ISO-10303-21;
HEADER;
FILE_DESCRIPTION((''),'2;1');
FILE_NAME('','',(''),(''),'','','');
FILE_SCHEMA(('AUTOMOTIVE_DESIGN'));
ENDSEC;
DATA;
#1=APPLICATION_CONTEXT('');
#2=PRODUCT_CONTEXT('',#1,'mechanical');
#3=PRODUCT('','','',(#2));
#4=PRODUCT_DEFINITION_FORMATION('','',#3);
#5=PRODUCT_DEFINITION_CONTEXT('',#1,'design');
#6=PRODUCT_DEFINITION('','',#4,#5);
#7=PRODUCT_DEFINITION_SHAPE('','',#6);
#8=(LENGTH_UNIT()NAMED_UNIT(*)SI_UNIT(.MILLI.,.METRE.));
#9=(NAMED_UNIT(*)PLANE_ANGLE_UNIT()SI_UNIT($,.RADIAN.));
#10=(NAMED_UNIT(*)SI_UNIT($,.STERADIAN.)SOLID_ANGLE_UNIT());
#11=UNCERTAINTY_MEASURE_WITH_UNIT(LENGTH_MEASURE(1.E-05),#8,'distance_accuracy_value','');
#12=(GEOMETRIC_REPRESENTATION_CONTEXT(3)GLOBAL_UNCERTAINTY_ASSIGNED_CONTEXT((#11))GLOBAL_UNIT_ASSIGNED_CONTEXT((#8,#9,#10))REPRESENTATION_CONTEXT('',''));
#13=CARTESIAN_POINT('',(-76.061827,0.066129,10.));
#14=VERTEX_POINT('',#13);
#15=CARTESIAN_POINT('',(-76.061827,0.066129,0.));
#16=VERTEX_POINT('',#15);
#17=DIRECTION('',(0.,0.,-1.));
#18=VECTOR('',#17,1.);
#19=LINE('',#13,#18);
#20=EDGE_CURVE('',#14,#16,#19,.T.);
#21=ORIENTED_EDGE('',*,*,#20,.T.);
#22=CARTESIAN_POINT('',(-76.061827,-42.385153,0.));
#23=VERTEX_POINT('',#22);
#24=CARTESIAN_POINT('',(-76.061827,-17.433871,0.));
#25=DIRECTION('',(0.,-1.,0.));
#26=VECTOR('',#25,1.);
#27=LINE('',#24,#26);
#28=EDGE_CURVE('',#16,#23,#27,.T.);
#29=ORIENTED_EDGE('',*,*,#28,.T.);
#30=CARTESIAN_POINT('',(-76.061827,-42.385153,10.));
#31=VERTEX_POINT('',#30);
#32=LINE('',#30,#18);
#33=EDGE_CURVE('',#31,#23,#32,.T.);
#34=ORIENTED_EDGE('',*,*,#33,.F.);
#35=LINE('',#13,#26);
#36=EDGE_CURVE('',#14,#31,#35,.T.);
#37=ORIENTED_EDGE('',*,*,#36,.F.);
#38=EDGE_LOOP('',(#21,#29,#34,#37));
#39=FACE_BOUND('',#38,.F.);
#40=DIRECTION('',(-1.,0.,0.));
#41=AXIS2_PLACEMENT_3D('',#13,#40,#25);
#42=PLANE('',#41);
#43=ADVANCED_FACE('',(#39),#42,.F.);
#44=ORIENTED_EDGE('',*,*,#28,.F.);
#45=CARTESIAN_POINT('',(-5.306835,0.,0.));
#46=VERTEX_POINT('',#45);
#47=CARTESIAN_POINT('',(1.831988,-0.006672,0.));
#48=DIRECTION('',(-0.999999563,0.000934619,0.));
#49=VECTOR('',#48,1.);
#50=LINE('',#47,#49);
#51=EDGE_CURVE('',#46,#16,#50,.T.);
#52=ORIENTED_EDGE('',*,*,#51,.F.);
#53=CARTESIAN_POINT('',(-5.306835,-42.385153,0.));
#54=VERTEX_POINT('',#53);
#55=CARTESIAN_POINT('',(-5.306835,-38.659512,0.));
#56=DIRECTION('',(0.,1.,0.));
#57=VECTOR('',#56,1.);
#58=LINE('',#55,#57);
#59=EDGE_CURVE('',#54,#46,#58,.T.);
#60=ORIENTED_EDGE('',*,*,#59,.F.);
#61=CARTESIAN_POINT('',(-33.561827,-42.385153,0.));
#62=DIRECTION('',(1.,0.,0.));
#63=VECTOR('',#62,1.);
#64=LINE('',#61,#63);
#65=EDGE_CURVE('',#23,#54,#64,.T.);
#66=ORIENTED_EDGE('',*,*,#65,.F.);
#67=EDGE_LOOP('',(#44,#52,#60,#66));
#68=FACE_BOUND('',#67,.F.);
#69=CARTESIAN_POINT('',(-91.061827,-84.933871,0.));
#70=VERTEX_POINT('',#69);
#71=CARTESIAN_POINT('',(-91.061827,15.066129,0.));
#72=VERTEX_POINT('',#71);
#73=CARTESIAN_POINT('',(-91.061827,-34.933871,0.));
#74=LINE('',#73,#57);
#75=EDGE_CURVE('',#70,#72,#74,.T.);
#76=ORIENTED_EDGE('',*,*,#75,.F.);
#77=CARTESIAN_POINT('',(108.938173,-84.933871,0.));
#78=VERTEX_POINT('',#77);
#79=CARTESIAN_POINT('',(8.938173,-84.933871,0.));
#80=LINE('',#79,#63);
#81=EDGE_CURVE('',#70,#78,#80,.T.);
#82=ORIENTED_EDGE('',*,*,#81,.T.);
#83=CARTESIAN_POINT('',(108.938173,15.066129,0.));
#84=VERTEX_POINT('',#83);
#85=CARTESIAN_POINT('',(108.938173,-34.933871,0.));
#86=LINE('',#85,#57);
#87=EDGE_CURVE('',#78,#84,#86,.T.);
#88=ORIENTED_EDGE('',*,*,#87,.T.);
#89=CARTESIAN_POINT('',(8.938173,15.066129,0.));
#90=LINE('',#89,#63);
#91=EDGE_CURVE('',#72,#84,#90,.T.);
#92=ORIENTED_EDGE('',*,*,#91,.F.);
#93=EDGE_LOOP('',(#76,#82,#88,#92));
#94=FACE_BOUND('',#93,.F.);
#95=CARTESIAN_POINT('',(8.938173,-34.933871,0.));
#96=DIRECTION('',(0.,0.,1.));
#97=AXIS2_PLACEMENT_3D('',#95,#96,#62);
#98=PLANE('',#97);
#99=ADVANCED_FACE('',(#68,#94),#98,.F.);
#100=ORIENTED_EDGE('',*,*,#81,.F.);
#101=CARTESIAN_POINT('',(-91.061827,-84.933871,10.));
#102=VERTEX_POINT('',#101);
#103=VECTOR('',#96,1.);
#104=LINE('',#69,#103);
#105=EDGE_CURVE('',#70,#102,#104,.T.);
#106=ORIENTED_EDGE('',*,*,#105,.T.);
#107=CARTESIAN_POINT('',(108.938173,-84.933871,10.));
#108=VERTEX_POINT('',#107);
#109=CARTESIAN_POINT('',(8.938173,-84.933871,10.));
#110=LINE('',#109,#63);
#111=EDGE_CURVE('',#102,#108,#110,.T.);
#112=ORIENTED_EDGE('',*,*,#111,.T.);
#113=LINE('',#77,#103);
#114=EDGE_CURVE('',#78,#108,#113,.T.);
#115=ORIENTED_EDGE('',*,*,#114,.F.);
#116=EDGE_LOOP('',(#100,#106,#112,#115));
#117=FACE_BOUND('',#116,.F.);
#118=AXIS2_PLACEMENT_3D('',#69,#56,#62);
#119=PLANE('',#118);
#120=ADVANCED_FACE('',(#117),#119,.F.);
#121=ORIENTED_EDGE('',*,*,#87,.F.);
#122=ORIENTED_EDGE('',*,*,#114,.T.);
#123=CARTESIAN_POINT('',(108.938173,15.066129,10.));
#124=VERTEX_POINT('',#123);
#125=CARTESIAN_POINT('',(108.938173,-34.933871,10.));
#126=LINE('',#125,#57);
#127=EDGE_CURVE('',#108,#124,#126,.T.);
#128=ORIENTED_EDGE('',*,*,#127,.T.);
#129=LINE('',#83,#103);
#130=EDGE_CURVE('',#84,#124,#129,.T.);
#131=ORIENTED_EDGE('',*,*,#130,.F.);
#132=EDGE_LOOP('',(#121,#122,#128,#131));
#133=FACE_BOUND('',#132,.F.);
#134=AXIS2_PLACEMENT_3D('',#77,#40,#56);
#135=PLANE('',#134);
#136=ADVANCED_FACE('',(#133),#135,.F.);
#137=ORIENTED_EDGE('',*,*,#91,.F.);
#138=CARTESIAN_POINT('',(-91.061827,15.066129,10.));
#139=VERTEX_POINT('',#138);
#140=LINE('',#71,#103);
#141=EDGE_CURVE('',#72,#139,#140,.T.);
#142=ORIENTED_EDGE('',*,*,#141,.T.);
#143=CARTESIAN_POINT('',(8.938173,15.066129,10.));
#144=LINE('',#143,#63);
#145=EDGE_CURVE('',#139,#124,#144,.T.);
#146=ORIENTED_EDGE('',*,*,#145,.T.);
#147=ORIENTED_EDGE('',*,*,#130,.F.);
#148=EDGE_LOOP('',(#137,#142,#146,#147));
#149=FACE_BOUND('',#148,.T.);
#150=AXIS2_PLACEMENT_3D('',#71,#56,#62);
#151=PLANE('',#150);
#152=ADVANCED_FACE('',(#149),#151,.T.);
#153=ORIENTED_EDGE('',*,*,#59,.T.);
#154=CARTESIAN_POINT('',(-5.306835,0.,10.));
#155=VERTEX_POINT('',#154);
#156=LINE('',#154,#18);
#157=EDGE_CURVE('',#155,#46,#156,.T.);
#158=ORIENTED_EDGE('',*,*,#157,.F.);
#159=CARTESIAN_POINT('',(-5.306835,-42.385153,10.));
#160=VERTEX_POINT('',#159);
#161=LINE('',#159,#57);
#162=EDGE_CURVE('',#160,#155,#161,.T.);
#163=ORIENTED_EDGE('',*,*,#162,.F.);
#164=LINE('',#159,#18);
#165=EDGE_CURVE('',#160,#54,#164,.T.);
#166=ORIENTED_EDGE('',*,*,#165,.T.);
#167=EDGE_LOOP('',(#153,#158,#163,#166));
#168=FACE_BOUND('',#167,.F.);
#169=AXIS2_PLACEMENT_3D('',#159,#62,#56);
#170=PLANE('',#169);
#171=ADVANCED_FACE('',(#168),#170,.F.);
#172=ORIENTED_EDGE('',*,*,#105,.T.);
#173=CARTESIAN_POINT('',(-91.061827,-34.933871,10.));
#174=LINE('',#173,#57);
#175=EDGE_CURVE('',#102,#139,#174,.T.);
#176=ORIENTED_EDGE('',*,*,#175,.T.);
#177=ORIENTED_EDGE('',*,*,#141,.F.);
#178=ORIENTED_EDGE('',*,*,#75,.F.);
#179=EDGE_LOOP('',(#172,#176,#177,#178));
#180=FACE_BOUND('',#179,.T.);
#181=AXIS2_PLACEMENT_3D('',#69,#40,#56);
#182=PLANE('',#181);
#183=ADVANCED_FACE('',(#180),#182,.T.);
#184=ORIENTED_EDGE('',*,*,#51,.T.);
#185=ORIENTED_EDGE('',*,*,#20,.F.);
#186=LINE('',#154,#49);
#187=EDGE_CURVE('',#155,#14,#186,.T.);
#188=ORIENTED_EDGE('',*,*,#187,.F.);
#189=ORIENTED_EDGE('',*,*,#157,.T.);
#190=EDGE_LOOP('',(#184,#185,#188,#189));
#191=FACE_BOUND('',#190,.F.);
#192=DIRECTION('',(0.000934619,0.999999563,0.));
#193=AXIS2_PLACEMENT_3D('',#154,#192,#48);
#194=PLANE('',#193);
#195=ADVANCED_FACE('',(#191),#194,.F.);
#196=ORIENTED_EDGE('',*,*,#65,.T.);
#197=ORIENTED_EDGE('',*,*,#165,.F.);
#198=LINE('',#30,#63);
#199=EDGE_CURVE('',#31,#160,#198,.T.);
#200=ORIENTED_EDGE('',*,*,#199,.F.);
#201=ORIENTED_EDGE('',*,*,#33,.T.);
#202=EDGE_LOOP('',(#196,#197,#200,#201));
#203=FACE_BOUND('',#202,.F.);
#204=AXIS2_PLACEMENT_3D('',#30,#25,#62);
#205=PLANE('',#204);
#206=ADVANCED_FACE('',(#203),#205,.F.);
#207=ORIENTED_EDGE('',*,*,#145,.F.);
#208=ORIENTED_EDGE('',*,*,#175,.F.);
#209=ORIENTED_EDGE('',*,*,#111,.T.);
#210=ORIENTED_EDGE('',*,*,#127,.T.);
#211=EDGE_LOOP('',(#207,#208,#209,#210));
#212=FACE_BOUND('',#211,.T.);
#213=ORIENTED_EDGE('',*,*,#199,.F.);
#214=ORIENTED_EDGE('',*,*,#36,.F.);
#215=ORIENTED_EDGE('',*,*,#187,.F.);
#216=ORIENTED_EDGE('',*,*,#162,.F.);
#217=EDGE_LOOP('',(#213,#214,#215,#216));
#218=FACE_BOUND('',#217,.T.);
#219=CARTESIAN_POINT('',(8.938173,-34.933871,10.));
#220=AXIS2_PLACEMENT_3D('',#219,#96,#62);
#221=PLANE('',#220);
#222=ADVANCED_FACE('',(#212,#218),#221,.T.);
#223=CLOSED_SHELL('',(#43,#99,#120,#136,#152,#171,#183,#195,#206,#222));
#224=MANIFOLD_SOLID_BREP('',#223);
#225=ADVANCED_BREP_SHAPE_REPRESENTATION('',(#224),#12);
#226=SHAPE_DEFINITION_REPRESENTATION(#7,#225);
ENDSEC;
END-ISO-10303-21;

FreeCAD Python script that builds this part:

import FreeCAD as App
import Part
import Sketcher
from FreeCAD import Vector
Q = App.Units.Quantity


def add_polygon(sketch, points):
    """Adds a closed chain of lines whose ends are joined by coincident constraints."""
    first, n = sketch.GeometryCount, len(points)
    for a, b in zip(points, points[1:] + points[:1]):
        sketch.addGeometry(Part.LineSegment(App.Vector(*a, 0), App.Vector(*b, 0)), False)
    for i in range(n):
        sketch.addConstraint(Sketcher.Constraint("Coincident", first + i, 2, first + (i + 1) % n, 1))

doc = App.newDocument("Part")
body = doc.addObject("PartDesign::Body", "Body")

# Sketch on XY plane
sketch1 = body.newObject("Sketcher::SketchObject", "Sketch")
sketch1.AttachmentSupport = (doc.getObject("XY_Plane"), [""])
sketch1.MapMode = "FlatFace"
add_polygon(sketch1, [(-91.061827, 15.066129), (-91.061827, -84.933871), (108.938173, -84.933871), (108.938173, 15.066129)])  # lines 0-3
sketch1.addConstraint([
    Sketcher.Constraint("Vertical", 0),
    Sketcher.Constraint("Horizontal", 1),
    Sketcher.Constraint("Vertical", 2),
    Sketcher.Constraint("Horizontal", 3),
    Sketcher.Constraint("DistanceX", 1, 1, 1, 2, Q("200 mm")),
    Sketcher.Constraint("DistanceY", 0, 2, 0, 1, Q("100 mm")),
    Sketcher.Constraint("DistanceY", 0, 2, -1, 1, Q("84.933871 mm")),
    Sketcher.Constraint("DistanceX", 0, 2, -1, 1, Q("91.061827 mm")),
])
pad1 = body.newObject("PartDesign::Pad", "Pad")
pad1.Profile = sketch1
pad1.Length = 10

# Sketch on XY plane
sketch2 = body.newObject("Sketcher::SketchObject", "Sketch001")
sketch2.AttachmentSupport = (doc.getObject("XY_Plane"), [""])
sketch2.MapMode = "FlatFace"
sketch2.AttachmentOffset = App.Placement(Vector(0, 0, 10), App.Rotation())
add_polygon(sketch2, [(-5.306835, -42.385153), (-5.306835, 0), (-76.061827, 0.066129), (-76.061827, -42.385153)])  # lines 0-3
sketch2.addConstraint([
    Sketcher.Constraint("Vertical", 0),
    Sketcher.Constraint("Vertical", 2),
    Sketcher.Constraint("Horizontal", 3),
    Sketcher.Constraint("PointOnObject", 0, 2, -1),
    Sketcher.Constraint("DistanceX", 3, 1, 3, 2, Q("70.754992 mm")),
    Sketcher.Constraint("DistanceY", 0, 1, 0, 2, Q("42.385153 mm")),
    Sketcher.Constraint("DistanceY", 2, 2, 2, 1, Q("42.451282 mm")),
    Sketcher.Constraint("DistanceX", 0, 2, -1, 1, Q("5.306835 mm")),
])
pocket1 = body.newObject("PartDesign::Pocket", "Pocket")
pocket1.Profile = sketch2
pocket1.Length = 25

doc.recompute()
